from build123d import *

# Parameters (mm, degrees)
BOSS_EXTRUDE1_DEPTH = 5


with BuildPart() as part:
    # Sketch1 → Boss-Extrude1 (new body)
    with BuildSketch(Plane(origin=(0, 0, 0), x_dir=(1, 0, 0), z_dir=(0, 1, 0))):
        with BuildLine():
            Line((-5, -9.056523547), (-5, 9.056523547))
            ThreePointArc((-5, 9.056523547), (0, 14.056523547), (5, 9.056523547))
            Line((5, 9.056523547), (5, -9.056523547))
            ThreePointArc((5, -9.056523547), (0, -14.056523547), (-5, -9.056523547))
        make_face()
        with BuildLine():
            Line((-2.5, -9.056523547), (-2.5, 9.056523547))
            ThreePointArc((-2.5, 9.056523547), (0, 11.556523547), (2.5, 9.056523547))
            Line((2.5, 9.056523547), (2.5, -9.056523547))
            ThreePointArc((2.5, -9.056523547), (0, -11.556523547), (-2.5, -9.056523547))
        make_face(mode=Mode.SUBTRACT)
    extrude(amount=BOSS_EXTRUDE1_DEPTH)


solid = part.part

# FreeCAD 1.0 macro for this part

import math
import FreeCAD as App
import Part
import Sketcher
from FreeCAD import Vector

doc = App.newDocument("Part")
body = doc.addObject("PartDesign::Body", "Body")

# Sketch on XZ plane
sketch1 = body.newObject("Sketcher::SketchObject", "Sketch")
sketch1.AttachmentSupport = (doc.getObject("XZ_Plane"), [""])
sketch1.MapMode = "FlatFace"
sketch1.addGeometry(Part.LineSegment(Vector(-5, -9.1, 0), Vector(-5, 9.1, 0)), False)
sketch1.addGeometry(Part.ArcOfCircle(Part.Circle(Vector(0, 9.1, 0), Vector(0, 0, 1), 5), math.radians(0), math.radians(180)), False)
sketch1.addGeometry(Part.LineSegment(Vector(5, 9.1, 0), Vector(5, -9.1, 0)), False)
sketch1.addGeometry(Part.ArcOfCircle(Part.Circle(Vector(0, -9.1, 0), Vector(0, 0, 1), 5), math.radians(180), math.radians(360)), False)
sketch1.addGeometry(Part.LineSegment(Vector(-2.5, 9.1, 0), Vector(-2.5, -9.1, 0)), False)
sketch1.addGeometry(Part.ArcOfCircle(Part.Circle(Vector(0, -9.1, 0), Vector(0, 0, 1), 2.5), math.radians(180), math.radians(360)), False)
sketch1.addGeometry(Part.LineSegment(Vector(2.5, -9.1, 0), Vector(2.5, 9.1, 0)), False)
sketch1.addGeometry(Part.ArcOfCircle(Part.Circle(Vector(0, 9.1, 0), Vector(0, 0, 1), 2.5), math.radians(0), math.radians(180)), False)
sketch1.addConstraint(Sketcher.Constraint("Tangent", 0, 2, 1, 2))
sketch1.addConstraint(Sketcher.Constraint("Tangent", 1, 1, 2, 1))
sketch1.addConstraint(Sketcher.Constraint("Tangent", 2, 2, 3, 2))
sketch1.addConstraint(Sketcher.Constraint("Tangent", 3, 1, 0, 1))
sketch1.addConstraint(Sketcher.Constraint("Tangent", 4, 2, 5, 1))
sketch1.addConstraint(Sketcher.Constraint("Tangent", 5, 2, 6, 1))
sketch1.addConstraint(Sketcher.Constraint("Tangent", 6, 2, 7, 1))
sketch1.addConstraint(Sketcher.Constraint("Tangent", 7, 2, 4, 1))
sketch1.addConstraint(Sketcher.Constraint("Vertical", 0))
sketch1.addConstraint(Sketcher.Constraint("Vertical", 2))
sketch1.addConstraint(Sketcher.Constraint("Vertical", 4))
sketch1.addConstraint(Sketcher.Constraint("Vertical", 6))
sketch1.addConstraint(Sketcher.Constraint("Coincident", 5, 3, 3, 3))
sketch1.addConstraint(Sketcher.Constraint("Symmetric", 1, 3, 3, 3, -1, 1))
sketch1.addConstraint(Sketcher.Constraint("Horizontal", 7, 3, 0, 2))
sketch1.addConstraint(Sketcher.Constraint("Radius", 1, 5.0))
sketch1.addConstraint(Sketcher.Constraint("Radius", 5, 2.5))
sketch1.addConstraint(Sketcher.Constraint("DistanceY", 0, 1, 0, 2, 18.113047))
pad1 = body.newObject("PartDesign::Pad", "Pad")
pad1.Profile = sketch1
pad1.Length = 5
pad1.Reversed = True

doc.recompute()
